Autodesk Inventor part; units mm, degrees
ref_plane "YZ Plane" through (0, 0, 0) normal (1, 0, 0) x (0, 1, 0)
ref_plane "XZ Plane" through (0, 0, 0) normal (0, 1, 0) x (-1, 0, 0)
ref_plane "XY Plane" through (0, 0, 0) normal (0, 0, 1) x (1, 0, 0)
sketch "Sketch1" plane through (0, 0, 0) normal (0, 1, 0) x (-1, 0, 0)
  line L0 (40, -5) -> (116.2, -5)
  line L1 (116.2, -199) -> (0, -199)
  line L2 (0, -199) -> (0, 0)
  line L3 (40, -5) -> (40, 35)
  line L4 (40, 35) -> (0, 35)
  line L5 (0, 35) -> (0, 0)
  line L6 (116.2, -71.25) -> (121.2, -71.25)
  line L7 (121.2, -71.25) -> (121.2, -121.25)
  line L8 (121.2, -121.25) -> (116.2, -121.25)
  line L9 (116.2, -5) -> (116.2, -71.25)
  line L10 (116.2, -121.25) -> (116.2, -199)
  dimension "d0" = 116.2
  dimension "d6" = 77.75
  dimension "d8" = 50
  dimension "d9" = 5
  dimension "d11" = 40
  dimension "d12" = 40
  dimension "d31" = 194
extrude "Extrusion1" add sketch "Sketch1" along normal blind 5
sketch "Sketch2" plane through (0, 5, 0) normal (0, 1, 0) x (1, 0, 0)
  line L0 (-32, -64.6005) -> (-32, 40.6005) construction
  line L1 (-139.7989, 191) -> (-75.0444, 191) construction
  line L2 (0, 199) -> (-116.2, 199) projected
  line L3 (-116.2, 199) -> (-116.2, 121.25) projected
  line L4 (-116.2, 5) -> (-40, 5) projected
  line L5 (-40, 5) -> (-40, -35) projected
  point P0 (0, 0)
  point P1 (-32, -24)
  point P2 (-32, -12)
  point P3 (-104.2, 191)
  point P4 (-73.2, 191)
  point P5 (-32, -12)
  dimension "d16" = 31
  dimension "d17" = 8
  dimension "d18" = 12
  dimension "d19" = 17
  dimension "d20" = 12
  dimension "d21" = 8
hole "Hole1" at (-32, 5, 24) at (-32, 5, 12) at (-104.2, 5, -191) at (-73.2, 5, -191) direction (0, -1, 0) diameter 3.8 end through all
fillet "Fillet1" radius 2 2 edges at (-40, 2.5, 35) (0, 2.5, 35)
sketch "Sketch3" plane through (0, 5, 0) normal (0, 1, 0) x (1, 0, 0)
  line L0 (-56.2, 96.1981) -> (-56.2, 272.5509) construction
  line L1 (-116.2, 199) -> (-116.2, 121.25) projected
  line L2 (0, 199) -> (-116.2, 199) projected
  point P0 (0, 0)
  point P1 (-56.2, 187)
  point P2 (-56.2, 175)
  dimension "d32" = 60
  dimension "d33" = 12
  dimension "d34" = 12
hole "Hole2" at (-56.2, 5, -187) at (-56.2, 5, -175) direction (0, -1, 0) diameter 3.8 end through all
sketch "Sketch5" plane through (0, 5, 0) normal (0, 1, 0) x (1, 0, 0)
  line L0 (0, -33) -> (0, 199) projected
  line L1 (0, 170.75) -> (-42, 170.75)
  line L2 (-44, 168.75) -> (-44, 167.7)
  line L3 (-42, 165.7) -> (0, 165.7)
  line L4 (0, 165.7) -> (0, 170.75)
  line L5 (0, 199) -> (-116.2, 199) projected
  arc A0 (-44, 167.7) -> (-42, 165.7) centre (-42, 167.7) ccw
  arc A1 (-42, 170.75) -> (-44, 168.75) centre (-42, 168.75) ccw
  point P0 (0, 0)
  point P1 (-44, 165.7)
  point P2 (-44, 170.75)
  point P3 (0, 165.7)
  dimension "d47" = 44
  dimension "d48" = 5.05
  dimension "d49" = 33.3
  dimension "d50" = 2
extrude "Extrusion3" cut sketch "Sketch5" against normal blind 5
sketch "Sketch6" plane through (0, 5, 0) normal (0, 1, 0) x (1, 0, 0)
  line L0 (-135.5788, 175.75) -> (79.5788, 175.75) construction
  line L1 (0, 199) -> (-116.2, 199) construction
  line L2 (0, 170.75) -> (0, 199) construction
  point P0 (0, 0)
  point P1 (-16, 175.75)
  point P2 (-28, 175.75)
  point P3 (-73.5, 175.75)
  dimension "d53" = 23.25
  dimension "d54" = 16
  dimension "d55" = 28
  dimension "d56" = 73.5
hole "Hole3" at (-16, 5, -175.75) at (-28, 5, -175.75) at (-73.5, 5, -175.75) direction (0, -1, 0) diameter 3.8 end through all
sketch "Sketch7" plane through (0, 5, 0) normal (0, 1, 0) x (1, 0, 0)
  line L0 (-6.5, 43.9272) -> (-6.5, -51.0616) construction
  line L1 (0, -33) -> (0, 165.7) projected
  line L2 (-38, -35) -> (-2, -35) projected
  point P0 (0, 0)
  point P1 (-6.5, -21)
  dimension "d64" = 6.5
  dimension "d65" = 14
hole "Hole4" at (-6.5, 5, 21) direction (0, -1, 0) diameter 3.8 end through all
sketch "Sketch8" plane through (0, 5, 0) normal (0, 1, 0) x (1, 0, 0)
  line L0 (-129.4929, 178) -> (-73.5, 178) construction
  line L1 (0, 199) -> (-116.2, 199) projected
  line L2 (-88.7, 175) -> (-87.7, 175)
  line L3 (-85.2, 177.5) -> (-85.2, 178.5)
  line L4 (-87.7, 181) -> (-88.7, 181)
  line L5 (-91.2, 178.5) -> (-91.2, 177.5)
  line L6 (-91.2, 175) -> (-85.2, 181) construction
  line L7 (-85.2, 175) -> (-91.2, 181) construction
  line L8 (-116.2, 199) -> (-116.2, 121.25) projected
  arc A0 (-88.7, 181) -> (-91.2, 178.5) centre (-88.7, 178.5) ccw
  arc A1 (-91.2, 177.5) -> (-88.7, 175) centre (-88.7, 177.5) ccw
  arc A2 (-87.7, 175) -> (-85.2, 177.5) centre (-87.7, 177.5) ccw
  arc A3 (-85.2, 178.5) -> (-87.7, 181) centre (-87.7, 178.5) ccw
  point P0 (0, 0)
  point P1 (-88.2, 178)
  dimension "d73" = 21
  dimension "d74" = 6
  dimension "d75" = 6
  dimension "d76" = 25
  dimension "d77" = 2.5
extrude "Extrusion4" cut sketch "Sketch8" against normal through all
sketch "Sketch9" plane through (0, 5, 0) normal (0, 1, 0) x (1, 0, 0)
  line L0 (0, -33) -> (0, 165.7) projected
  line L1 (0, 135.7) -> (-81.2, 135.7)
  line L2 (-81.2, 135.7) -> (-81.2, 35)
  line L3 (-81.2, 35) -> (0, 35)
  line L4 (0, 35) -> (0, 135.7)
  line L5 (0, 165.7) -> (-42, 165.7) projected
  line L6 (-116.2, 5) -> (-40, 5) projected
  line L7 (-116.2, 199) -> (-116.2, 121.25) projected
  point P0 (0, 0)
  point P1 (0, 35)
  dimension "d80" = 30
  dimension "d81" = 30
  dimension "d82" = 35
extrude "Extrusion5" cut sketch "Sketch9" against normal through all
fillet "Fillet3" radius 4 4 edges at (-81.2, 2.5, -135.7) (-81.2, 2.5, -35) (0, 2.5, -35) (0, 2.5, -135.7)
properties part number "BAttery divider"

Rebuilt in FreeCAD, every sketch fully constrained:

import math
import FreeCAD as App
import Part
import Sketcher
from FreeCAD import Vector
Q = App.Units.Quantity


def edges_at(feature, points):
    """Names of the edges that pass closest to the given points."""
    edges = feature.Shape.Edges
    near = lambda p: min(range(len(edges)), key=lambda i: edges[i].distToShape(Part.Vertex(*p))[0])
    return sorted({f"Edge{near(p) + 1}" for p in points})

doc = App.newDocument("Part")
body = doc.addObject("PartDesign::Body", "Body")

sketch1 = body.newObject("Sketcher::SketchObject", "Sketch")
sketch1.AttachmentSupport = (doc.getObject("XZ_Plane"), [""])
sketch1.MapMode = "FlatFace"
sketch1.addGeometry(Part.LineSegment(Vector(-116, -5, 0), Vector(-40, -5, 0)), False)
sketch1.addGeometry(Part.LineSegment(Vector(-40, -5, 0), Vector(-40, 35, 0)), False)
sketch1.addGeometry(Part.LineSegment(Vector(-40, 35, 0), Vector(0, 35, 0)), False)
sketch1.addGeometry(Part.LineSegment(Vector(0, 35, 0), Vector(0, -199, 0)), False)
sketch1.addGeometry(Part.LineSegment(Vector(0, -199, 0), Vector(-116, -199, 0)), False)
sketch1.addGeometry(Part.LineSegment(Vector(-116, -199, 0), Vector(-116, -121, 0)), False)
sketch1.addGeometry(Part.LineSegment(Vector(-116, -121, 0), Vector(-121, -121, 0)), False)
sketch1.addGeometry(Part.LineSegment(Vector(-121, -121, 0), Vector(-121, -71, 0)), False)
sketch1.addGeometry(Part.LineSegment(Vector(-121, -71, 0), Vector(-116, -71, 0)), False)
sketch1.addGeometry(Part.LineSegment(Vector(-116, -71, 0), Vector(-116, -5, 0)), False)
sketch1.addConstraint(Sketcher.Constraint("Coincident", 0, 2, 1, 1))
sketch1.addConstraint(Sketcher.Constraint("Coincident", 1, 2, 2, 1))
sketch1.addConstraint(Sketcher.Constraint("Coincident", 2, 2, 3, 1))
sketch1.addConstraint(Sketcher.Constraint("Coincident", 3, 2, 4, 1))
sketch1.addConstraint(Sketcher.Constraint("Coincident", 4, 2, 5, 1))
sketch1.addConstraint(Sketcher.Constraint("Coincident", 5, 2, 6, 1))
sketch1.addConstraint(Sketcher.Constraint("Coincident", 6, 2, 7, 1))
sketch1.addConstraint(Sketcher.Constraint("Coincident", 7, 2, 8, 1))
sketch1.addConstraint(Sketcher.Constraint("Coincident", 8, 2, 9, 1))
sketch1.addConstraint(Sketcher.Constraint("Coincident", 9, 2, 0, 1))
sketch1.addConstraint(Sketcher.Constraint("Horizontal", 0))
sketch1.addConstraint(Sketcher.Constraint("Vertical", 1))
sketch1.addConstraint(Sketcher.Constraint("Horizontal", 2))
sketch1.addConstraint(Sketcher.Constraint("Vertical", 3))
sketch1.addConstraint(Sketcher.Constraint("Horizontal", 4))
sketch1.addConstraint(Sketcher.Constraint("Vertical", 5))
sketch1.addConstraint(Sketcher.Constraint("Horizontal", 6))
sketch1.addConstraint(Sketcher.Constraint("Vertical", 7))
sketch1.addConstraint(Sketcher.Constraint("Horizontal", 8))
sketch1.addConstraint(Sketcher.Constraint("Vertical", 9))
sketch1.addConstraint(Sketcher.Constraint("PointOnObject", 2, 2, -2))
sketch1.addConstraint(Sketcher.Constraint("Vertical", 5, 2, 8, 2))
sketch1.addConstraint(Sketcher.Constraint("Equal", 2, 1))
sketch1.addConstraint(Sketcher.Constraint("DistanceX", 2, 1, 2, 2, Q("40 mm")))
sketch1.addConstraint(Sketcher.Constraint("DistanceX", 6, 2, 6, 1, Q("5 mm")))
sketch1.addConstraint(Sketcher.Constraint("DistanceY", 7, 1, 7, 2, Q("50 mm")))
sketch1.addConstraint(Sketcher.Constraint("DistanceX", 4, 2, 4, 1, Q("116.2 mm")))
sketch1.addConstraint(Sketcher.Constraint("DistanceY", 0, 2, -1, 1, Q("5 mm")))
sketch1.addConstraint(Sketcher.Constraint("DistanceY", 3, 2, 0, 2, Q("194 mm")))
sketch1.addConstraint(Sketcher.Constraint("DistanceY", 5, 1, 5, 2, Q("77.75 mm")))
pad1 = body.newObject("PartDesign::Pad", "Pad")
pad1.Profile = sketch1
pad1.Length = 5
pad1.Reversed = True

sketch2 = body.newObject("Sketcher::SketchObject", "Sketch001")
sketch2.AttachmentSupport = (doc.getObject("XZ_Plane"), [""])
sketch2.MapMode = "FlatFace"
sketch2.AttachmentOffset = App.Placement(Vector(0, 0, -5), App.Rotation())
sketch2.addGeometry(Part.Circle(Vector(-32, 24, 0), Vector(0, 0, 1), 1.9), False)
sketch2.addGeometry(Part.Circle(Vector(-32, 12, 0), Vector(0, 0, 1), 1.9), False)
sketch2.addGeometry(Part.Circle(Vector(-104.2, -191, 0), Vector(0, 0, 1), 1.9), False)
sketch2.addGeometry(Part.Circle(Vector(-73.2, -191, 0), Vector(0, 0, 1), 1.9), False)
sketch2.addConstraint(Sketcher.Constraint("Equal", 0, 1))
sketch2.addConstraint(Sketcher.Constraint("Equal", 1, 2))
sketch2.addConstraint(Sketcher.Constraint("Equal", 2, 3))
sketch2.addConstraint(Sketcher.Constraint("Horizontal", 2, 3, 3, 3))
sketch2.addConstraint(Sketcher.Constraint("Vertical", 0, 3, 1, 3))
sketch2.addConstraint(Sketcher.Constraint("Diameter", 0, Q("3.8 mm")))
sketch2.addConstraint(Sketcher.Constraint("DistanceX", 0, 3, -1, 1, Q("32 mm")))
sketch2.addConstraint(Sketcher.Constraint("DistanceY", -1, 1, 0, 3, Q("24 mm")))
sketch2.addConstraint(Sketcher.Constraint("DistanceY", -1, 1, 1, 3, Q("12 mm")))
sketch2.addConstraint(Sketcher.Constraint("DistanceY", 2, 3, -1, 1, Q("191 mm")))
sketch2.addConstraint(Sketcher.Constraint("DistanceX", 2, 3, 3, 3, Q("31 mm")))
sketch2.addConstraint(Sketcher.Constraint("DistanceX", 2, 3, -1, 1, Q("104.2 mm")))
doc.recompute()
hole = body.newObject("PartDesign::Hole", "Hole")
hole.Profile = sketch2
hole.ThreadType = "None"
hole.Diameter = 3.8
hole.DepthType = "ThroughAll"
hole.Reversed = True
doc.recompute()

fillet = body.newObject("PartDesign::Fillet", "Fillet")
fillet.Base = (hole, edges_at(hole, [(-40, 2.5, 35), (0, 2.5, 35)]))
fillet.Radius = 2

sketch3 = body.newObject("Sketcher::SketchObject", "Sketch002")
sketch3.AttachmentSupport = (doc.getObject("XZ_Plane"), [""])
sketch3.MapMode = "FlatFace"
sketch3.AttachmentOffset = App.Placement(Vector(0, 0, -5), App.Rotation())
sketch3.addGeometry(Part.Circle(Vector(-56.2, -187, 0), Vector(0, 0, 1), 1.9), False)
sketch3.addGeometry(Part.Circle(Vector(-56.2, -175, 0), Vector(0, 0, 1), 1.9), False)
sketch3.addConstraint(Sketcher.Constraint("Equal", 0, 1))
sketch3.addConstraint(Sketcher.Constraint("Vertical", 0, 3, 1, 3))
sketch3.addConstraint(Sketcher.Constraint("Diameter", 0, Q("3.8 mm")))
sketch3.addConstraint(Sketcher.Constraint("DistanceY", 0, 3, -1, 1, Q("187 mm")))
sketch3.addConstraint(Sketcher.Constraint("DistanceY", 1, 3, -1, 1, Q("175 mm")))
sketch3.addConstraint(Sketcher.Constraint("DistanceX", 0, 3, -1, 1, Q("56.2 mm")))
doc.recompute()
hole2 = body.newObject("PartDesign::Hole", "Hole001")
hole2.Profile = sketch3
hole2.ThreadType = "None"
hole2.Diameter = 3.8
hole2.DepthType = "ThroughAll"
hole2.Reversed = True

sketch4 = body.newObject("Sketcher::SketchObject", "Sketch003")
sketch4.AttachmentSupport = (doc.getObject("XZ_Plane"), [""])
sketch4.MapMode = "FlatFace"
sketch4.AttachmentOffset = App.Placement(Vector(0, 0, -5), App.Rotation())
sketch4.addGeometry(Part.LineSegment(Vector(-42, -165.7, 0), Vector(0, -165.7, 0)), False)
sketch4.addGeometry(Part.LineSegment(Vector(0, -165.7, 0), Vector(0, -170.8, 0)), False)
sketch4.addGeometry(Part.LineSegment(Vector(0, -170.8, 0), Vector(-42, -170.8, 0)), False)
sketch4.addGeometry(Part.ArcOfCircle(Part.Circle(Vector(-42, -168.8, 0), Vector(0, 0, 1), 2), math.radians(180), math.radians(270)), False)
sketch4.addGeometry(Part.LineSegment(Vector(-44, -168.8, 0), Vector(-44, -167.7, 0)), False)
sketch4.addGeometry(Part.ArcOfCircle(Part.Circle(Vector(-42, -167.7, 0), Vector(0, 0, 1), 2), math.radians(90), math.radians(180)), False)
sketch4.addConstraint(Sketcher.Constraint("Coincident", 0, 2, 1, 1))
sketch4.addConstraint(Sketcher.Constraint("Coincident", 1, 2, 2, 1))
sketch4.addConstraint(Sketcher.Constraint("Tangent", 2, 2, 3, 2))
sketch4.addConstraint(Sketcher.Constraint("Tangent", 3, 1, 4, 1))
sketch4.addConstraint(Sketcher.Constraint("Tangent", 4, 2, 5, 2))
sketch4.addConstraint(Sketcher.Constraint("Tangent", 5, 1, 0, 1))
sketch4.addConstraint(Sketcher.Constraint("Horizontal", 0))
sketch4.addConstraint(Sketcher.Constraint("Vertical", 1))
sketch4.addConstraint(Sketcher.Constraint("Horizontal", 2))
sketch4.addConstraint(Sketcher.Constraint("Vertical", 4))
sketch4.addConstraint(Sketcher.Constraint("Equal", 3, 5))
sketch4.addConstraint(Sketcher.Constraint("PointOnObject", 0, 2, -2))
sketch4.addConstraint(Sketcher.Constraint("Radius", 3, Q("2 mm")))
sketch4.addConstraint(Sketcher.Constraint("DistanceX", 3, 1, -1, 1, Q("44 mm")))
sketch4.addConstraint(Sketcher.Constraint("DistanceY", 1, 2, 1, 1, Q("5.05 mm")))
sketch4.addConstraint(Sketcher.Constraint("DistanceY", 5, 3, -1, 1, Q("167.7 mm")))
pocket1 = body.newObject("PartDesign::Pocket", "Pocket")
pocket1.Profile = sketch4
pocket1.Length = 5
pocket1.Reversed = True

sketch5 = body.newObject("Sketcher::SketchObject", "Sketch004")
sketch5.AttachmentSupport = (doc.getObject("XZ_Plane"), [""])
sketch5.MapMode = "FlatFace"
sketch5.AttachmentOffset = App.Placement(Vector(0, 0, -5), App.Rotation())
sketch5.addGeometry(Part.Circle(Vector(-16, -175.8, 0), Vector(0, 0, 1), 1.9), False)
sketch5.addGeometry(Part.Circle(Vector(-28, -175.8, 0), Vector(0, 0, 1), 1.9), False)
sketch5.addGeometry(Part.Circle(Vector(-73.5, -175.8, 0), Vector(0, 0, 1), 1.9), False)
sketch5.addConstraint(Sketcher.Constraint("Equal", 0, 1))
sketch5.addConstraint(Sketcher.Constraint("Equal", 1, 2))
sketch5.addConstraint(Sketcher.Constraint("Horizontal", 0, 3, 1, 3))
sketch5.addConstraint(Sketcher.Constraint("Horizontal", 1, 3, 2, 3))
sketch5.addConstraint(Sketcher.Constraint("Diameter", 0, Q("3.8 mm")))
sketch5.addConstraint(Sketcher.Constraint("DistanceX", 0, 3, -1, 1, Q("16 mm")))
sketch5.addConstraint(Sketcher.Constraint("DistanceX", 1, 3, -1, 1, Q("28 mm")))
sketch5.addConstraint(Sketcher.Constraint("DistanceX", 2, 3, -1, 1, Q("73.5 mm")))
sketch5.addConstraint(Sketcher.Constraint("DistanceY", 0, 3, -1, 1, Q("175.75 mm")))
doc.recompute()
hole3 = body.newObject("PartDesign::Hole", "Hole002")
hole3.Profile = sketch5
hole3.ThreadType = "None"
hole3.Diameter = 3.8
hole3.DepthType = "ThroughAll"
hole3.Reversed = True

sketch6 = body.newObject("Sketcher::SketchObject", "Sketch005")
sketch6.AttachmentSupport = (doc.getObject("XZ_Plane"), [""])
sketch6.MapMode = "FlatFace"
sketch6.AttachmentOffset = App.Placement(Vector(0, 0, -5), App.Rotation())
sketch6.addGeometry(Part.Circle(Vector(-6.5, 21, 0), Vector(0, 0, 1), 1.9), False)
sketch6.addConstraint(Sketcher.Constraint("Diameter", 0, Q("3.8 mm")))
sketch6.addConstraint(Sketcher.Constraint("DistanceY", -1, 1, 0, 3, Q("21 mm")))
sketch6.addConstraint(Sketcher.Constraint("DistanceX", 0, 3, -1, 1, Q("6.5 mm")))
doc.recompute()
hole4 = body.newObject("PartDesign::Hole", "Hole003")
hole4.Profile = sketch6
hole4.ThreadType = "None"
hole4.Diameter = 3.8
hole4.DepthType = "ThroughAll"
hole4.Reversed = True

sketch7 = body.newObject("Sketcher::SketchObject", "Sketch006")
sketch7.AttachmentSupport = (doc.getObject("XZ_Plane"), [""])
sketch7.MapMode = "FlatFace"
sketch7.AttachmentOffset = App.Placement(Vector(0, 0, -5), App.Rotation())
sketch7.addGeometry(Part.ArcOfCircle(Part.Circle(Vector(-88.7, -177.5, 0), Vector(0, 0, 1), 2.5), math.radians(90), math.radians(180)), False)
sketch7.addGeometry(Part.LineSegment(Vector(-88.7, -175, 0), Vector(-87.7, -175, 0)), False)
sketch7.addGeometry(Part.ArcOfCircle(Part.Circle(Vector(-87.7, -177.5, 0), Vector(0, 0, 1), 2.5), math.radians(0), math.radians(90)), False)
sketch7.addGeometry(Part.LineSegment(Vector(-85.2, -177.5, 0), Vector(-85.2, -178.5, 0)), False)
sketch7.addGeometry(Part.ArcOfCircle(Part.Circle(Vector(-87.7, -178.5, 0), Vector(0, 0, 1), 2.5), math.radians(-90), math.radians(0)), False)
sketch7.addGeometry(Part.LineSegment(Vector(-87.7, -181, 0), Vector(-88.7, -181, 0)), False)
sketch7.addGeometry(Part.ArcOfCircle(Part.Circle(Vector(-88.7, -178.5, 0), Vector(0, 0, 1), 2.5), math.radians(180), math.radians(270)), False)
sketch7.addGeometry(Part.LineSegment(Vector(-91.2, -178.5, 0), Vector(-91.2, -177.5, 0)), False)
sketch7.addConstraint(Sketcher.Constraint("Tangent", 0, 1, 1, 1))
sketch7.addConstraint(Sketcher.Constraint("Tangent", 1, 2, 2, 2))
sketch7.addConstraint(Sketcher.Constraint("Tangent", 2, 1, 3, 1))
sketch7.addConstraint(Sketcher.Constraint("Tangent", 3, 2, 4, 2))
sketch7.addConstraint(Sketcher.Constraint("Tangent", 4, 1, 5, 1))
sketch7.addConstraint(Sketcher.Constraint("Tangent", 5, 2, 6, 2))
sketch7.addConstraint(Sketcher.Constraint("Tangent", 6, 1, 7, 1))
sketch7.addConstraint(Sketcher.Constraint("Tangent", 7, 2, 0, 2))
sketch7.addConstraint(Sketcher.Constraint("Horizontal", 1))
sketch7.addConstraint(Sketcher.Constraint("Vertical", 3))
sketch7.addConstraint(Sketcher.Constraint("Horizontal", 5))
sketch7.addConstraint(Sketcher.Constraint("Vertical", 7))
sketch7.addConstraint(Sketcher.Constraint("Equal", 0, 2))
sketch7.addConstraint(Sketcher.Constraint("Equal", 2, 4))
sketch7.addConstraint(Sketcher.Constraint("Equal", 4, 6))
sketch7.addConstraint(Sketcher.Constraint("Equal", 5, 3))
sketch7.addConstraint(Sketcher.Constraint("Radius", 0, Q("2.5 mm")))
sketch7.addConstraint(Sketcher.Constraint("DistanceX", 1, 1, 1, 2, Q("1 mm")))
sketch7.addConstraint(Sketcher.Constraint("DistanceY", 0, 1, -1, 1, Q("175 mm")))
sketch7.addConstraint(Sketcher.Constraint("DistanceX", 0, 3, -1, 1, Q("88.7 mm")))
pocket2 = body.newObject("PartDesign::Pocket", "Pocket001")
pocket2.Profile = sketch7
pocket2.Type = "ThroughAll"
pocket2.Reversed = True

sketch8 = body.newObject("Sketcher::SketchObject", "Sketch007")
sketch8.AttachmentSupport = (doc.getObject("XZ_Plane"), [""])
sketch8.MapMode = "FlatFace"
sketch8.AttachmentOffset = App.Placement(Vector(0, 0, -5), App.Rotation())
sketch8.addGeometry(Part.LineSegment(Vector(-81, -35, 0), Vector(0, -35, 0)), False)
sketch8.addGeometry(Part.LineSegment(Vector(0, -35, 0), Vector(0, -136, 0)), False)
sketch8.addGeometry(Part.LineSegment(Vector(0, -136, 0), Vector(-81, -136, 0)), False)
sketch8.addGeometry(Part.LineSegment(Vector(-81, -136, 0), Vector(-81, -35, 0)), False)
sketch8.addConstraint(Sketcher.Constraint("Coincident", 0, 2, 1, 1))
sketch8.addConstraint(Sketcher.Constraint("Coincident", 1, 2, 2, 1))
sketch8.addConstraint(Sketcher.Constraint("Coincident", 2, 2, 3, 1))
sketch8.addConstraint(Sketcher.Constraint("Coincident", 3, 2, 0, 1))
sketch8.addConstraint(Sketcher.Constraint("Horizontal", 0))
sketch8.addConstraint(Sketcher.Constraint("Vertical", 1))
sketch8.addConstraint(Sketcher.Constraint("Horizontal", 2))
sketch8.addConstraint(Sketcher.Constraint("Vertical", 3))
sketch8.addConstraint(Sketcher.Constraint("PointOnObject", 0, 2, -2))
sketch8.addConstraint(Sketcher.Constraint("DistanceY", 0, 2, -1, 1, Q("35 mm")))
sketch8.addConstraint(Sketcher.Constraint("DistanceX", 0, 1, 0, 2, Q("81.2 mm")))
sketch8.addConstraint(Sketcher.Constraint("DistanceY", 1, 2, 1, 1, Q("100.7 mm")))
pocket3 = body.newObject("PartDesign::Pocket", "Pocket002")
pocket3.Profile = sketch8
pocket3.Type = "ThroughAll"
pocket3.Reversed = True
doc.recompute()

fillet2 = body.newObject("PartDesign::Fillet", "Fillet001")
fillet2.Base = (pocket3, edges_at(pocket3, [
    (-81.2, 2.5, -135.7),
    (-81.2, 2.5, -35),
    (0, 2.5, -35),
    (0, 2.5, -135.7),
]))
fillet2.Radius = 4

doc.recompute()
